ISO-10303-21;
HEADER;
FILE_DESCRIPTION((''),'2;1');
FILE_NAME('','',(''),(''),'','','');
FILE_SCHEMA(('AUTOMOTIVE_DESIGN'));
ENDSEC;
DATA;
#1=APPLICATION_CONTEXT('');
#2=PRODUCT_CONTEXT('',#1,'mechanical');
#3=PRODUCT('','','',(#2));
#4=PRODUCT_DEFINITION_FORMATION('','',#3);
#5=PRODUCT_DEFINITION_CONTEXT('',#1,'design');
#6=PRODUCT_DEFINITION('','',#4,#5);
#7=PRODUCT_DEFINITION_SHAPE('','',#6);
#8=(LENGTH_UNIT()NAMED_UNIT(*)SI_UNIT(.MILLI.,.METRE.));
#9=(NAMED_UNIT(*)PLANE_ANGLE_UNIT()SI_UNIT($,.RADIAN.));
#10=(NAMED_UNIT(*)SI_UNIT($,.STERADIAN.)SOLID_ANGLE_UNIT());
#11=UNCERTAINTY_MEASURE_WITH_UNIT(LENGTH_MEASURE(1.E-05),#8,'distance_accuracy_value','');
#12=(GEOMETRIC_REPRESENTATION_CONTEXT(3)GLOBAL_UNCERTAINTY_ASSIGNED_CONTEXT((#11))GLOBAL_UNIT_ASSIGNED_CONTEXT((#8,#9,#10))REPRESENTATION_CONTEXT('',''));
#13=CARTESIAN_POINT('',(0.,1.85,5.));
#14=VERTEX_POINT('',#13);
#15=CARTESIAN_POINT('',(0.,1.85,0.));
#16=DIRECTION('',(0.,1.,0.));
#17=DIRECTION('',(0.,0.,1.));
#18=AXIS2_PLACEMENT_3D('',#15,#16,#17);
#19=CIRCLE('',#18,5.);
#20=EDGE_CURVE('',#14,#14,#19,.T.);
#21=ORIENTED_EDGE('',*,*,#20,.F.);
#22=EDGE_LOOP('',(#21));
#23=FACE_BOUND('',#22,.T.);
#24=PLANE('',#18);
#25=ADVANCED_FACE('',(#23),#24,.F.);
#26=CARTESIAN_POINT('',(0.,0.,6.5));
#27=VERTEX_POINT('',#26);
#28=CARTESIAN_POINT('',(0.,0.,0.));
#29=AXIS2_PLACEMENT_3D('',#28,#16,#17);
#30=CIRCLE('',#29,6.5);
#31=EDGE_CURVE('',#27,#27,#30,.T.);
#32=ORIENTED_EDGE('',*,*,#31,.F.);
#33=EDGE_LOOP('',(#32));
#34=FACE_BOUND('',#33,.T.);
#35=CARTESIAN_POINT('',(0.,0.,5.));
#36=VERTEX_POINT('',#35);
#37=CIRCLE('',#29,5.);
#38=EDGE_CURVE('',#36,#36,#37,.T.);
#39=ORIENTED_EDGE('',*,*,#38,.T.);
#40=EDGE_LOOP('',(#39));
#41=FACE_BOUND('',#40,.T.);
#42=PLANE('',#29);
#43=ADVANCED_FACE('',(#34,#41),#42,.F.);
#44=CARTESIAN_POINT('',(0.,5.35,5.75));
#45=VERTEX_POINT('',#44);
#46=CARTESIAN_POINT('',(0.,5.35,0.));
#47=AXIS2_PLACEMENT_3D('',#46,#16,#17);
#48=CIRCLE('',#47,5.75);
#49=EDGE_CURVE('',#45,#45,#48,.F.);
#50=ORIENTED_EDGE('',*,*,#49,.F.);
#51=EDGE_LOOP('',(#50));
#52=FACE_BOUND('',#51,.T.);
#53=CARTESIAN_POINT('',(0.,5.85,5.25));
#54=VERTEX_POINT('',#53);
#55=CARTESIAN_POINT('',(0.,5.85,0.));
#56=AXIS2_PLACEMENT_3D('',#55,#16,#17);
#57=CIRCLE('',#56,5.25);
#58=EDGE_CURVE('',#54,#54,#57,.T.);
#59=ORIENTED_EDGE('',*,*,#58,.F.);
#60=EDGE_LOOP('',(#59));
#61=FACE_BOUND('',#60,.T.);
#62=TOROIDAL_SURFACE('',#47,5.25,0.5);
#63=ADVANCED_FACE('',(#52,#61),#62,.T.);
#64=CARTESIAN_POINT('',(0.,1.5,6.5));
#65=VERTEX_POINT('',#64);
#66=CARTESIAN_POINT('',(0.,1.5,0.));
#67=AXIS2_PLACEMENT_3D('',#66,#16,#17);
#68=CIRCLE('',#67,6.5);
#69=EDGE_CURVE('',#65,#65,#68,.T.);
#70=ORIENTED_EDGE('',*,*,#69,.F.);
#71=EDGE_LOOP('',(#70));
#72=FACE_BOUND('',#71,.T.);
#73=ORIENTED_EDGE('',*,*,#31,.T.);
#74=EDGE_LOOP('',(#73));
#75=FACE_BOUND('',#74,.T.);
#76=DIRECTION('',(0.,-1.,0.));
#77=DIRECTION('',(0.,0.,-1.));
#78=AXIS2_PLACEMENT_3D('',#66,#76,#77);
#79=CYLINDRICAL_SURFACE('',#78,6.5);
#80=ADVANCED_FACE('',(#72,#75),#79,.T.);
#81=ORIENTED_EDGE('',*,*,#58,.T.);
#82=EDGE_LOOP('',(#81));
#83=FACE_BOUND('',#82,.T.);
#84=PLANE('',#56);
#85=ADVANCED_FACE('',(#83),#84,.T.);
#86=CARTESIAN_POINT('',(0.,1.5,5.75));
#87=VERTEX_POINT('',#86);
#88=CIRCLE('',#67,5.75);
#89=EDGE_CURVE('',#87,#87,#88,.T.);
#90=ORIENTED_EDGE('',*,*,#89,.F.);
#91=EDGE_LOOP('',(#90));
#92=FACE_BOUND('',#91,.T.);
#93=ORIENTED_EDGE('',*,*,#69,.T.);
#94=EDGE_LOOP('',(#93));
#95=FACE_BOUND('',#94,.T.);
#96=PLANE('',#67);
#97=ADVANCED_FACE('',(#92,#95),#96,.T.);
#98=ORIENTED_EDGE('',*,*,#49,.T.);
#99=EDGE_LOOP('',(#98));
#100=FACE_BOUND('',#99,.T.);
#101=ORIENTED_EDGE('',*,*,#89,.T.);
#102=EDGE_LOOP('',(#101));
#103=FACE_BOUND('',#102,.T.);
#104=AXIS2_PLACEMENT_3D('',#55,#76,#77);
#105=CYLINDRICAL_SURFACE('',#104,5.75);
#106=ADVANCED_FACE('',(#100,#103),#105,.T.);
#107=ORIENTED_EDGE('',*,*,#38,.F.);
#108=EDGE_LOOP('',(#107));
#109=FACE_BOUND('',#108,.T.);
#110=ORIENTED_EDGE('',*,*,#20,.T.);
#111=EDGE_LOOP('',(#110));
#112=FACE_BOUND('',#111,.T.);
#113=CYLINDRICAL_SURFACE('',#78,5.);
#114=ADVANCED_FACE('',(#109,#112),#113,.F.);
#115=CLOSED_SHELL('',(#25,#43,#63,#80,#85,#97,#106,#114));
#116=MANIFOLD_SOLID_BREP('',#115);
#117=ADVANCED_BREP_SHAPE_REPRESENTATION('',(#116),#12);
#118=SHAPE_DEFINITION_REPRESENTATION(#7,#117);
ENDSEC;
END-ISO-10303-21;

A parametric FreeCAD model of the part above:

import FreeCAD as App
import Part
import Sketcher


def edges_at(feature, points):
    """Names of the edges that pass closest to the given points."""
    edges = feature.Shape.Edges
    near = lambda p: min(range(len(edges)), key=lambda i: edges[i].distToShape(Part.Vertex(*p))[0])
    return sorted({f"Edge{near(p) + 1}" for p in points})

doc = App.newDocument("Part")
body = doc.addObject("PartDesign::Body", "Body")

# Sketch on XZ plane
sketch1 = body.newObject("Sketcher::SketchObject", "Sketch")
sketch1.AttachmentSupport = (doc.getObject("XZ_Plane"), [""])
sketch1.MapMode = "FlatFace"
sketch1.addGeometry(Part.Circle(App.Vector(0, 0, 0), App.Vector(0, 0, 1), 6), False)
sketch1.addGeometry(Part.Circle(App.Vector(0, 0, 0), App.Vector(0, 0, 1), 5), False)
sketch1.addConstraint(Sketcher.Constraint("Coincident", 0, 3, -1, 1))
sketch1.addConstraint(Sketcher.Constraint("Coincident", 1, 3, -1, 1))
sketch1.addConstraint(Sketcher.Constraint("Diameter", 0, 13.0))
sketch1.addConstraint(Sketcher.Constraint("Diameter", 1, 10.0))
pad1 = body.newObject("PartDesign::Pad", "Pad")
pad1.Profile = sketch1
pad1.Length = 1.5
pad1.Reversed = True

# Sketch on XZ plane
sketch2 = body.newObject("Sketcher::SketchObject", "Sketch001")
sketch2.AttachmentSupport = (doc.getObject("XZ_Plane"), [""])
sketch2.MapMode = "FlatFace"
sketch2.AttachmentOffset = App.Placement(App.Vector(0, 0, -1.5), App.Rotation())
sketch2.addGeometry(Part.Circle(App.Vector(0, 0, 0), App.Vector(0, 0, 1), 6), False)
sketch2.addGeometry(Part.Circle(App.Vector(0, 0, 0), App.Vector(0, 0, 1), 5), False)
sketch2.addConstraint(Sketcher.Constraint("Coincident", 0, 3, -1, 1))
sketch2.addConstraint(Sketcher.Constraint("Coincident", 1, 3, -1, 1))
sketch2.addConstraint(Sketcher.Constraint("Diameter", 1, 10.0))
sketch2.addConstraint(Sketcher.Constraint("Diameter", 0, 11.5))
pad2 = body.newObject("PartDesign::Pad", "Pad001")
pad2.Profile = sketch2
pad2.Length = 4.35
pad2.Reversed = True
doc.recompute()

fillet = body.newObject("PartDesign::Fillet", "Fillet")
fillet.Base = (pad2, edges_at(pad2, [(-5.75, 5.85, 0)]))
fillet.Radius = 0.5

# Sketch on XZ plane
sketch3 = body.newObject("Sketcher::SketchObject", "Sketch002")
sketch3.AttachmentSupport = (doc.getObject("XZ_Plane"), [""])
sketch3.MapMode = "FlatFace"
sketch3.AttachmentOffset = App.Placement(App.Vector(0, 0, -5.85), App.Rotation())
sketch3.addGeometry(Part.Circle(App.Vector(0, 0, 0), App.Vector(0, 0, 1), 5), False)
sketch3.addConstraint(Sketcher.Constraint("Coincident", 0, 3, -1, 1))
sketch3.addConstraint(Sketcher.Constraint("Diameter", 0, 10.0))
pad3 = body.newObject("PartDesign::Pad", "Pad002")
pad3.Profile = sketch3
pad3.Length = 4

doc.recompute()
